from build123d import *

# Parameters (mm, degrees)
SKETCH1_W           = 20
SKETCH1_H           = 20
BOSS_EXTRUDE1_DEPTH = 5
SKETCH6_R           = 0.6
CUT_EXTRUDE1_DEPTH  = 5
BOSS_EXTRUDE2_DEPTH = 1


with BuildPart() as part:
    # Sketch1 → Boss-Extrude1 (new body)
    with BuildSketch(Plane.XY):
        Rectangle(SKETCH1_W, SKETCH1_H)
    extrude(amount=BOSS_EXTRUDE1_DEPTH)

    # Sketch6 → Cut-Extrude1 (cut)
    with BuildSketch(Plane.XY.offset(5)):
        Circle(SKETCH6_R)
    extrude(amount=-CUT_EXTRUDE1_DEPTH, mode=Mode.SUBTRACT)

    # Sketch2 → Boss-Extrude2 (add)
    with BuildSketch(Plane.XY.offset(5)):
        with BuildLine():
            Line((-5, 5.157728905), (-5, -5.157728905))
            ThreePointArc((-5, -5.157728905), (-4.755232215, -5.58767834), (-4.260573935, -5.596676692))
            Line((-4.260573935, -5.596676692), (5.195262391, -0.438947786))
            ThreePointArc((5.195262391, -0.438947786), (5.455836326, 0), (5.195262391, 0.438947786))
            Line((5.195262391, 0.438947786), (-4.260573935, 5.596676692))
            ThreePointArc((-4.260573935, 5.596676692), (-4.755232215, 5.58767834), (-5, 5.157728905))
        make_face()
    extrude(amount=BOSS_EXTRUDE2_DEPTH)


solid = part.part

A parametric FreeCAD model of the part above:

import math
import FreeCAD as App
import Part
import Sketcher
from FreeCAD import Vector
Q = App.Units.Quantity


def add_polygon(sketch, points):
    """Adds a closed chain of lines whose ends are joined by coincident constraints."""
    first, n = sketch.GeometryCount, len(points)
    for a, b in zip(points, points[1:] + points[:1]):
        sketch.addGeometry(Part.LineSegment(App.Vector(*a, 0), App.Vector(*b, 0)), False)
    for i in range(n):
        sketch.addConstraint(Sketcher.Constraint("Coincident", first + i, 2, first + (i + 1) % n, 1))

doc = App.newDocument("Part")
body = doc.addObject("PartDesign::Body", "Body")

# Sketch on XY plane
sketch1 = body.newObject("Sketcher::SketchObject", "Sketch")
sketch1.AttachmentSupport = (doc.getObject("XY_Plane"), [""])
sketch1.MapMode = "FlatFace"
add_polygon(sketch1, [(-10, 10), (-10, -10), (10, -10), (10, 10)])  # lines 0-3
sketch1.addConstraint(Sketcher.Constraint("Vertical", 0))
sketch1.addConstraint(Sketcher.Constraint("Horizontal", 1))
sketch1.addConstraint(Sketcher.Constraint("Vertical", 2))
sketch1.addConstraint(Sketcher.Constraint("Horizontal", 3))
sketch1.addConstraint(Sketcher.Constraint("Symmetric", 0, 2, 2, 2, -1, 1))
sketch1.addConstraint(Sketcher.Constraint("Equal", 3, 0))
sketch1.addConstraint(Sketcher.Constraint("DistanceX", 1, 1, 1, 2, Q("20 mm")))
pad1 = body.newObject("PartDesign::Pad", "Pad")
pad1.Profile = sketch1
pad1.Length = 5

# Sketch on XY plane
sketch2 = body.newObject("Sketcher::SketchObject", "Sketch001")
sketch2.AttachmentSupport = (doc.getObject("XY_Plane"), [""])
sketch2.MapMode = "FlatFace"
sketch2.AttachmentOffset = App.Placement(Vector(0, 0, 5), App.Rotation())
sketch2.addGeometry(Part.Circle(Vector(0, 0, 0), Vector(0, 0, 1), 0.6), False)
sketch2.addConstraint(Sketcher.Constraint("Coincident", 0, 3, -1, 1))
sketch2.addConstraint(Sketcher.Constraint("Diameter", 0, Q("1.2 mm")))
pocket1 = body.newObject("PartDesign::Pocket", "Pocket")
pocket1.Profile = sketch2
pocket1.Length = 5

# Sketch on XY plane
sketch3 = body.newObject("Sketcher::SketchObject", "Sketch002")
sketch3.AttachmentSupport = (doc.getObject("XY_Plane"), [""])
sketch3.MapMode = "FlatFace"
sketch3.AttachmentOffset = App.Placement(Vector(0, 0, 5), App.Rotation())
sketch3.addGeometry(Part.LineSegment(Vector(-5, 5.16, 0), Vector(-5, -5.16, 0)), False)
sketch3.addGeometry(Part.ArcOfCircle(Part.Circle(Vector(-4.5, -5.16, 0), Vector(0, 0, 1), 0.5), math.radians(180), math.radians(299)), False)
sketch3.addGeometry(Part.LineSegment(Vector(-4.26, -5.6, 0), Vector(5.2, -0.44, 0)), False)
sketch3.addGeometry(Part.ArcOfCircle(Part.Circle(Vector(4.96, 0, 0), Vector(0, 0, 1), 0.5), math.radians(-61), math.radians(61)), False)
sketch3.addGeometry(Part.LineSegment(Vector(5.2, 0.44, 0), Vector(-4.26, 5.6, 0)), False)
sketch3.addGeometry(Part.ArcOfCircle(Part.Circle(Vector(-4.5, 5.16, 0), Vector(0, 0, 1), 0.5), math.radians(61), math.radians(180)), False)
sketch3.addConstraint(Sketcher.Constraint("Tangent", 0, 2, 1, 1))
sketch3.addConstraint(Sketcher.Constraint("Tangent", 1, 2, 2, 1))
sketch3.addConstraint(Sketcher.Constraint("Tangent", 2, 2, 3, 1))
sketch3.addConstraint(Sketcher.Constraint("Tangent", 3, 2, 4, 1))
sketch3.addConstraint(Sketcher.Constraint("Tangent", 4, 2, 5, 1))
sketch3.addConstraint(Sketcher.Constraint("Tangent", 5, 2, 0, 1))
sketch3.addConstraint(Sketcher.Constraint("Vertical", 0))
sketch3.addConstraint(Sketcher.Constraint("Equal", 1, 3))
sketch3.addConstraint(Sketcher.Constraint("Equal", 3, 5))
sketch3.addConstraint(Sketcher.Constraint("Symmetric", 2, 2, 3, 2, -1))
sketch3.addConstraint(Sketcher.Constraint("Radius", 1, Q("0.5 mm")))
sketch3.addConstraint(Sketcher.Constraint("DistanceX", 0, 2, -1, 1, Q("5 mm")))
sketch3.addConstraint(Sketcher.Constraint("DistanceY", 0, 2, 0, 1, Q("10.315458 mm")))
sketch3.addConstraint(Sketcher.Constraint("DistanceX", 1, 2, 3, 3, Q("9.21641 mm")))
pad2 = body.newObject("PartDesign::Pad", "Pad001")
pad2.Profile = sketch3
pad2.Length = 1

doc.recompute()
